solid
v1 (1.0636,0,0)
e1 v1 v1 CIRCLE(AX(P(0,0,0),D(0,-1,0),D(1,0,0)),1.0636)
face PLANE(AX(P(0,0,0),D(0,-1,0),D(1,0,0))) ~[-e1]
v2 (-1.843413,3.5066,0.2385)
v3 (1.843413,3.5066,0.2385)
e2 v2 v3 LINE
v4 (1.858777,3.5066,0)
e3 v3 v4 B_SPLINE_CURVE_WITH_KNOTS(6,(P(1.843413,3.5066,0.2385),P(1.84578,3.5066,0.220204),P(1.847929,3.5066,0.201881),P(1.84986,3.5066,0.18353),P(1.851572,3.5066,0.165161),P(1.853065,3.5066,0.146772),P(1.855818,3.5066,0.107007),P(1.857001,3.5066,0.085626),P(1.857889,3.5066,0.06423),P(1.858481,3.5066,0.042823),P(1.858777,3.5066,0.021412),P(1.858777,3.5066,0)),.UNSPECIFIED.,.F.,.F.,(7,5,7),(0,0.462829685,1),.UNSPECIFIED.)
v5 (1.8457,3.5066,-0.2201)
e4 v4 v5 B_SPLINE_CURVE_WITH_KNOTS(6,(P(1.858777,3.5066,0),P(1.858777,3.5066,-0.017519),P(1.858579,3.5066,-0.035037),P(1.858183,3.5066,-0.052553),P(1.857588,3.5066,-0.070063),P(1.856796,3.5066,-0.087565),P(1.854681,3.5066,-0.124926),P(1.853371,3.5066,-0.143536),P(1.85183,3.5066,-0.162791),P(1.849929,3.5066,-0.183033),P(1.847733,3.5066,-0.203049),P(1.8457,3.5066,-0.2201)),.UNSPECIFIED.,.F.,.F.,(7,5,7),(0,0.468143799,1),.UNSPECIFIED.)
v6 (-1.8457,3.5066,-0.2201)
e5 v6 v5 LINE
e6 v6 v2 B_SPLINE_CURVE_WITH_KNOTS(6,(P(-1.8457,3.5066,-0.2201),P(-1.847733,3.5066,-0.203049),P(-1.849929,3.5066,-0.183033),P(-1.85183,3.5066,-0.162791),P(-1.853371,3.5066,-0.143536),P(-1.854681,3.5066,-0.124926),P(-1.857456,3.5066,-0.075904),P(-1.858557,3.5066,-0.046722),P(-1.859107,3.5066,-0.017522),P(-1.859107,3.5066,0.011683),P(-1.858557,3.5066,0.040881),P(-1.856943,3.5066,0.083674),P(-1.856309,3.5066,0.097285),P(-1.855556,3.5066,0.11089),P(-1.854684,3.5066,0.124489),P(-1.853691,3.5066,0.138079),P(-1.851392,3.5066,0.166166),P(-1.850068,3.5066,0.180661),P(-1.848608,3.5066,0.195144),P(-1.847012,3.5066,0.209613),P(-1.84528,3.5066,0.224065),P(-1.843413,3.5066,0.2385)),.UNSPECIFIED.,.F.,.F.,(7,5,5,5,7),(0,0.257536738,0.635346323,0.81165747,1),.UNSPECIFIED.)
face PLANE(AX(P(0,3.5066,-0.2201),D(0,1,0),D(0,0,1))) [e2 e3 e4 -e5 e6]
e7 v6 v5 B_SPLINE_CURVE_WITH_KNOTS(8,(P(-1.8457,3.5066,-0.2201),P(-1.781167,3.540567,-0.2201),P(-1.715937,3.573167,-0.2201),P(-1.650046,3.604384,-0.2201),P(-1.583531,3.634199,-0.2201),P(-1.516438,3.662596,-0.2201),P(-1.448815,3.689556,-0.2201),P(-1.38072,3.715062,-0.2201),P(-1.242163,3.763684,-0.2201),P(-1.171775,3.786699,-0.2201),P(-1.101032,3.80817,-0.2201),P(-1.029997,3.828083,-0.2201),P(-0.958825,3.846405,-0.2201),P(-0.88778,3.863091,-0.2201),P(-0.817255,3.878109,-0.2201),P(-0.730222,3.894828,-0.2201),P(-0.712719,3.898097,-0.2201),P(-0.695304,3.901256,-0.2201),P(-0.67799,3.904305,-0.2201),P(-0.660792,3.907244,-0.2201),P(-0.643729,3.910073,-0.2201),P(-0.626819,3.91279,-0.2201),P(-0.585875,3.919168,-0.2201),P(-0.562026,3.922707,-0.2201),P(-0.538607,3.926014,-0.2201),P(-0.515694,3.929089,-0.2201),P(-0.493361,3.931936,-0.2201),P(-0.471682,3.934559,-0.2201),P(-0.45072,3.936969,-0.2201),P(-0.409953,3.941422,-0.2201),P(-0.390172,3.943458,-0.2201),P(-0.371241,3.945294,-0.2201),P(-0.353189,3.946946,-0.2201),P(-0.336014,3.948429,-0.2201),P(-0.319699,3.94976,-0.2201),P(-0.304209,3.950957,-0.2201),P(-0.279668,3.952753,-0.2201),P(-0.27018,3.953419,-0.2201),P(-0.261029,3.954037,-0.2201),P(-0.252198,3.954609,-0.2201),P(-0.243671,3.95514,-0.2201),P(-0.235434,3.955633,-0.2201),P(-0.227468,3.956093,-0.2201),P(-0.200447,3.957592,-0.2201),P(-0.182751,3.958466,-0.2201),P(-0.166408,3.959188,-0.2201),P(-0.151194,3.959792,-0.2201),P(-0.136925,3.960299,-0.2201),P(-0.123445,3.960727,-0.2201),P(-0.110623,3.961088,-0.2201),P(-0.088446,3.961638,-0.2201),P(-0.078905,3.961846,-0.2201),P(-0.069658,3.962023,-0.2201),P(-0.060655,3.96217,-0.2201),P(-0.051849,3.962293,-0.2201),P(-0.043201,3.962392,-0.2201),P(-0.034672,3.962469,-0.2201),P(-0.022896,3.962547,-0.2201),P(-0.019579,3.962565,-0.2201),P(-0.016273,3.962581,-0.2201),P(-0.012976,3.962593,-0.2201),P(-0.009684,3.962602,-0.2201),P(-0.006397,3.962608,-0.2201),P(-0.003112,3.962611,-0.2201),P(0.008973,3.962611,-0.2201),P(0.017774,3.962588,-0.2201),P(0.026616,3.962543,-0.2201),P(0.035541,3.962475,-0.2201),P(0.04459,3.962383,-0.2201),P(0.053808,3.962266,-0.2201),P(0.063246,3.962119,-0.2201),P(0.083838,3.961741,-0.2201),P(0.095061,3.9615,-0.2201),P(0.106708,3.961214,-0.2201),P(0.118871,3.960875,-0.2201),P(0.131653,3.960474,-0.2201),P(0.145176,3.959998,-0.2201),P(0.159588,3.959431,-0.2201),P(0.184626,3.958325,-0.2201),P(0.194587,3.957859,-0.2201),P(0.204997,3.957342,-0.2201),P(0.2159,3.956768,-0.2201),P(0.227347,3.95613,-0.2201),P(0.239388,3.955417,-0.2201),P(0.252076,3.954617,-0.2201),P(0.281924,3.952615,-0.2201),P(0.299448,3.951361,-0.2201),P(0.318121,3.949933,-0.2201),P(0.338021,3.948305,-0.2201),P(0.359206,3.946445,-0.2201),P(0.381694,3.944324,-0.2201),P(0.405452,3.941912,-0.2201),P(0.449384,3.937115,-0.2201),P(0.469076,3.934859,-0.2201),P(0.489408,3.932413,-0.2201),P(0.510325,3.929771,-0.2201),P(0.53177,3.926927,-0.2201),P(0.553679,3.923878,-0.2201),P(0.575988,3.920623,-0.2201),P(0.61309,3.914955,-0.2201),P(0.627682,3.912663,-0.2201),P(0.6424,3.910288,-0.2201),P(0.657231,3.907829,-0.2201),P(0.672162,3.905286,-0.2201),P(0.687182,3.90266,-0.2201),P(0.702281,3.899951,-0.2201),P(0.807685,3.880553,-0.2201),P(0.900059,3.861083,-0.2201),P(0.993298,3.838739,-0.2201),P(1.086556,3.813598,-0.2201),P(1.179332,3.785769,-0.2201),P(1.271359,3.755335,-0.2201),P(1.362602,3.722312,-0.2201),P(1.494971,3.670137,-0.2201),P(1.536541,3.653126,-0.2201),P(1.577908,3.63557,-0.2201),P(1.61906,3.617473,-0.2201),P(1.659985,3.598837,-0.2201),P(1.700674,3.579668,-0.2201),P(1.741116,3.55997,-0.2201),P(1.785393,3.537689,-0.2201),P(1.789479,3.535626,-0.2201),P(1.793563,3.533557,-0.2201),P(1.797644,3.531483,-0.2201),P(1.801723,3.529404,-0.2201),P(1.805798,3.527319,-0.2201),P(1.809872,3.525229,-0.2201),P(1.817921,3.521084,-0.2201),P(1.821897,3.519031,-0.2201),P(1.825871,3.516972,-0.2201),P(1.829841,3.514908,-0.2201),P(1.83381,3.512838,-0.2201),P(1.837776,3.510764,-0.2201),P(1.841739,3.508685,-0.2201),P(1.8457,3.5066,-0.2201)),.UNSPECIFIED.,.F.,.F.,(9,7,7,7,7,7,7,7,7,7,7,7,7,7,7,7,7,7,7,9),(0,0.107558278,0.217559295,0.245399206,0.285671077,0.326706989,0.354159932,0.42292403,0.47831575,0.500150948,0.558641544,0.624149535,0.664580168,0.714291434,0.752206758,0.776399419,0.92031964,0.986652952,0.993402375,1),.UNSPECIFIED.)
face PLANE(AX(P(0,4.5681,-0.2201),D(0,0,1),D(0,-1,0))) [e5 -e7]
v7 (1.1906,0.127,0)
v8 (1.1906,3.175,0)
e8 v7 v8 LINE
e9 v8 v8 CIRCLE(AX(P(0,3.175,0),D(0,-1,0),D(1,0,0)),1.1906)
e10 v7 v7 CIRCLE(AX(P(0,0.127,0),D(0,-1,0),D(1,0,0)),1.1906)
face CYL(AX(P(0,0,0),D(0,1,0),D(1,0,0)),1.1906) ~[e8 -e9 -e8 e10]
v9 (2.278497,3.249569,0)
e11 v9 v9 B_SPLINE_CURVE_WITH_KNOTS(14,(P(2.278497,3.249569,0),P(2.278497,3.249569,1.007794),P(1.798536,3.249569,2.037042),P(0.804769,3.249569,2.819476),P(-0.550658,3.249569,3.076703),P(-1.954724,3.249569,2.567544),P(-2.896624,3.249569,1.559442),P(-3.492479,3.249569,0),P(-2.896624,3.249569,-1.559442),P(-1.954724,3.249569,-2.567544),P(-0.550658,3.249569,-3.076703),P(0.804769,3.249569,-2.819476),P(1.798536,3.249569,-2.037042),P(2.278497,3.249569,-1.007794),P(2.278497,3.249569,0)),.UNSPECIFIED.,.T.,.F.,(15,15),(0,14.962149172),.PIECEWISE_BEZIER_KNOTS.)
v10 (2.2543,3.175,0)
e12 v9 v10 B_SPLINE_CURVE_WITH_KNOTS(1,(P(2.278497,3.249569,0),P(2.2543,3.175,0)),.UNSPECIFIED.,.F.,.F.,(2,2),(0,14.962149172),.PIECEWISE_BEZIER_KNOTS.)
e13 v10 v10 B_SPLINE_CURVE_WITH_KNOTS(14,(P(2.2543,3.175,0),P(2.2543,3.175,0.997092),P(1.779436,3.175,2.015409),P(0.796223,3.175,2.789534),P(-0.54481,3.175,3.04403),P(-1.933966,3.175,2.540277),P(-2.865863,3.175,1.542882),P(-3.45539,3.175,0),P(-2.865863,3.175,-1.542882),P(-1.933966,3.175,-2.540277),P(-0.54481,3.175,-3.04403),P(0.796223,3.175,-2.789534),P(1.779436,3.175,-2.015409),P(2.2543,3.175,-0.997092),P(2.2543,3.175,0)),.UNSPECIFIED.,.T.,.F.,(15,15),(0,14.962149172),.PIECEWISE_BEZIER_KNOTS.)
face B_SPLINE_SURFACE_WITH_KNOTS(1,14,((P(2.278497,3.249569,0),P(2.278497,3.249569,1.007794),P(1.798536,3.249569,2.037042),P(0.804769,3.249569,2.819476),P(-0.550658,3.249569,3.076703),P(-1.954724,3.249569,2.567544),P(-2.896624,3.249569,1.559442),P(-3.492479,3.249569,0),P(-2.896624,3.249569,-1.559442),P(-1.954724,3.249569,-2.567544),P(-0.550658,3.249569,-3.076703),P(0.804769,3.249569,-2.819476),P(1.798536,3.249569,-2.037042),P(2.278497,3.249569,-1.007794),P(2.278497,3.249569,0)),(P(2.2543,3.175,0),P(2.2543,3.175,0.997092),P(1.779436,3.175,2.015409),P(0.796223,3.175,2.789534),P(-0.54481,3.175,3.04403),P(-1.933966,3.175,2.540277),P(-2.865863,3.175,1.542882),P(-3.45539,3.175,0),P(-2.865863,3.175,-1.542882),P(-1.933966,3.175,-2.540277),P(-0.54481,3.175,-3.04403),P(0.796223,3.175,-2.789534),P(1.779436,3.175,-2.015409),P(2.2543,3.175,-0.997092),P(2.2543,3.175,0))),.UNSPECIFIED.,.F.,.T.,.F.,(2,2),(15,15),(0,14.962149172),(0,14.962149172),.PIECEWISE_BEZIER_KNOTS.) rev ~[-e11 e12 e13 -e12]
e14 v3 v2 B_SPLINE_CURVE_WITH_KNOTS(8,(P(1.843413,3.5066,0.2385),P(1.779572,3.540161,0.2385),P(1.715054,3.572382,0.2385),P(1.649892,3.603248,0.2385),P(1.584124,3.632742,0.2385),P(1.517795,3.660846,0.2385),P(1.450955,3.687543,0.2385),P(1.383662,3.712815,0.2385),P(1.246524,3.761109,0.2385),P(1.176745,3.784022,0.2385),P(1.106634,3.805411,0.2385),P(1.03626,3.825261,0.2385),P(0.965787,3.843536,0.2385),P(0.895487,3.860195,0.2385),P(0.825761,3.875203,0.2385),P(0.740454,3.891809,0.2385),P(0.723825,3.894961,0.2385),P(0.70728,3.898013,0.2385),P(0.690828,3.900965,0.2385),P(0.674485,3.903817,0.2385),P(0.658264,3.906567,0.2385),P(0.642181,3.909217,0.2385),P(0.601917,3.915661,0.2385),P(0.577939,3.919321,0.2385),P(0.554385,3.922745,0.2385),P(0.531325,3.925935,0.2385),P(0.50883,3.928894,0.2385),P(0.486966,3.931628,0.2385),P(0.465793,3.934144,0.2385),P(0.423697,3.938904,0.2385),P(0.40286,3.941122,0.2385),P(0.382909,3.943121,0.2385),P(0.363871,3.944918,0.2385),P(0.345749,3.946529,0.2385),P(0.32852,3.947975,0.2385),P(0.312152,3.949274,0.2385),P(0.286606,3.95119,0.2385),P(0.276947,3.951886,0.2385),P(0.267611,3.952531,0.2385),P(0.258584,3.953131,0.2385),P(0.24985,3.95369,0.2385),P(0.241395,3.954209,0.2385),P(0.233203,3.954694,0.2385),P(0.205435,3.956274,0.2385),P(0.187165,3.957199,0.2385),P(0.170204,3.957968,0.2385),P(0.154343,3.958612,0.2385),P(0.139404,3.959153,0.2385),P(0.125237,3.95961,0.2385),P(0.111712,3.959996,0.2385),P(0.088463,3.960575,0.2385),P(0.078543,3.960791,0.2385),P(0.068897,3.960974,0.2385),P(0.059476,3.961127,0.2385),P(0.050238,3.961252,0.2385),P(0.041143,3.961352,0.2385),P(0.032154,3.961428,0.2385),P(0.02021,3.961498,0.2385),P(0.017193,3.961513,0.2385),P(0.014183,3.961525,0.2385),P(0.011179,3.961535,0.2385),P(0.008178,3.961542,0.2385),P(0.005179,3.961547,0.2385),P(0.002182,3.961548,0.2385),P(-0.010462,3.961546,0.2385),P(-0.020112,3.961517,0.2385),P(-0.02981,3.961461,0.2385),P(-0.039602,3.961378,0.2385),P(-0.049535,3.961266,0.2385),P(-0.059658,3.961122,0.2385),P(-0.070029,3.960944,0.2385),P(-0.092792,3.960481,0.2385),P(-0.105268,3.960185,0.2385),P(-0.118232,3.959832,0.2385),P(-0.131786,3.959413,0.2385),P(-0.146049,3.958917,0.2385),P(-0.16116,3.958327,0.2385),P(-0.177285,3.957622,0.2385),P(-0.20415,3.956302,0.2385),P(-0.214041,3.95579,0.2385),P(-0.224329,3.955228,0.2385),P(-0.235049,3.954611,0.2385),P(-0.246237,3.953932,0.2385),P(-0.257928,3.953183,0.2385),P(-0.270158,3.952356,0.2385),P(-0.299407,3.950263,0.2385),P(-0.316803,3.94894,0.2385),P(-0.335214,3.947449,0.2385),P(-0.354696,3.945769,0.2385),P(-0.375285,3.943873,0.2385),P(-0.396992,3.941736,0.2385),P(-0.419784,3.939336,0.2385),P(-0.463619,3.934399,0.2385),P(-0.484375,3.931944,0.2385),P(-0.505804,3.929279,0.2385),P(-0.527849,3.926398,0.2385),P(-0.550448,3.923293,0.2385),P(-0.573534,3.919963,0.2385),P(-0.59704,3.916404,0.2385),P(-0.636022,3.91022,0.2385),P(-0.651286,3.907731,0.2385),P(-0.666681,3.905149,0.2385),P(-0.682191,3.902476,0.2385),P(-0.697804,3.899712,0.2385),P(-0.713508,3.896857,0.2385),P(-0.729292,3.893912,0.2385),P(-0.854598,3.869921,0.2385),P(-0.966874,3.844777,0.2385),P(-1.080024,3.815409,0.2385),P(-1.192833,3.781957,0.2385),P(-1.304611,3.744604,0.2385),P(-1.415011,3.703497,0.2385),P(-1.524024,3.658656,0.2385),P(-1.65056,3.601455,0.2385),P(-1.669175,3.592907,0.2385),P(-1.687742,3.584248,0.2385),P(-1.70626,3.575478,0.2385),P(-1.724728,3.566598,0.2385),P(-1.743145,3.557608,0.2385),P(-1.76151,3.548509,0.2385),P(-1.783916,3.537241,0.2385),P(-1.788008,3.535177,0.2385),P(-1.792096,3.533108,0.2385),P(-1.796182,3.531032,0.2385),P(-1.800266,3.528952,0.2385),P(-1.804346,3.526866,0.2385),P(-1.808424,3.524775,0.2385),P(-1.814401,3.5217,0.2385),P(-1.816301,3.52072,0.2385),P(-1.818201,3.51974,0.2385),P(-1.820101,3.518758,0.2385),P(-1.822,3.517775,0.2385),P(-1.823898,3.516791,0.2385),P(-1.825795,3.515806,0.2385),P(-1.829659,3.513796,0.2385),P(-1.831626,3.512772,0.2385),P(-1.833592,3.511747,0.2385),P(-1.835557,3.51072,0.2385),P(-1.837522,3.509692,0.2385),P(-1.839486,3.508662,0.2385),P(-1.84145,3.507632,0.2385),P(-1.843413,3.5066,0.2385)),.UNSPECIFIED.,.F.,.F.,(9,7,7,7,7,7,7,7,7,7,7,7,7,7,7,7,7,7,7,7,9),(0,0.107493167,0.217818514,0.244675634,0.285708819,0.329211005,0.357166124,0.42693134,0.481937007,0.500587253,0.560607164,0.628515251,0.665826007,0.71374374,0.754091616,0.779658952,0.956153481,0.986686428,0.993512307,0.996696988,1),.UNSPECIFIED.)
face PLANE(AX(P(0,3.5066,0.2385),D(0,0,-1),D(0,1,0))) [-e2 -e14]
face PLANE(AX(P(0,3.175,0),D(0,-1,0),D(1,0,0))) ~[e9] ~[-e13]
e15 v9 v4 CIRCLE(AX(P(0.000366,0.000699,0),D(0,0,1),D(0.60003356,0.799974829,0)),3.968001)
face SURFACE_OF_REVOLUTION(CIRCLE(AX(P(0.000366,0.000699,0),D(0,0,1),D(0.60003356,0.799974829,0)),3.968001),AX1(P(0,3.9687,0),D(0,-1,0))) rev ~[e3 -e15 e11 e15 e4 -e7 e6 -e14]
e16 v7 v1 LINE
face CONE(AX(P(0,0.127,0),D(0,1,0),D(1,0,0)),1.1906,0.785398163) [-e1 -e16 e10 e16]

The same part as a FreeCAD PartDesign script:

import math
import FreeCAD as App
import Part
import Sketcher
from FreeCAD import Vector
Q = App.Units.Quantity


def edges_at(feature, points):
    """Names of the edges that pass closest to the given points."""
    edges = feature.Shape.Edges
    near = lambda p: min(range(len(edges)), key=lambda i: edges[i].distToShape(Part.Vertex(*p))[0])
    return sorted({f"Edge{near(p) + 1}" for p in points})


def add_polygon(sketch, points):
    """Adds a closed chain of lines whose ends are joined by coincident constraints."""
    first, n = sketch.GeometryCount, len(points)
    for a, b in zip(points, points[1:] + points[:1]):
        sketch.addGeometry(Part.LineSegment(App.Vector(*a, 0), App.Vector(*b, 0)), False)
    for i in range(n):
        sketch.addConstraint(Sketcher.Constraint("Coincident", first + i, 2, first + (i + 1) % n, 1))

doc = App.newDocument("Part")
body = doc.addObject("PartDesign::Body", "Body")

# Sketch on XY plane
sketch1 = body.newObject("Sketcher::SketchObject", "Sketch")
sketch1.AttachmentSupport = (doc.getObject("XY_Plane"), [""])
sketch1.MapMode = "FlatFace"
sketch1.addGeometry([
    Part.ArcOfCircle(Part.Circle(Vector(0, 0, 0), Vector(0, 0, 1), 3.96878), math.radians(53.129525), math.radians(90)),  # 0
    Part.LineSegment(Vector(0, 3.9687, 0), Vector(0, 0, 0)),  # 1
    Part.LineSegment(Vector(0, 0, 0), Vector(1.1906, 0, 0)),  # 2
    Part.LineSegment(Vector(1.1906, 0, 0), Vector(1.1906, 3.175, 0)),  # 3
    Part.LineSegment(Vector(1.1906, 3.175, 0), Vector(2.3813, 3.175, 0)),  # 4
], False)
sketch1.addConstraint([
    Sketcher.Constraint("Coincident", 0, 2, 1, 1),
    Sketcher.Constraint("Coincident", 1, 2, 2, 1),
    Sketcher.Constraint("Coincident", 2, 2, 3, 1),
    Sketcher.Constraint("Coincident", 3, 2, 4, 1),
    Sketcher.Constraint("Coincident", 4, 2, 0, 1),
    Sketcher.Constraint("Vertical", 1),
    Sketcher.Constraint("Horizontal", 2),
    Sketcher.Constraint("Vertical", 3),
    Sketcher.Constraint("Horizontal", 4),
    Sketcher.Constraint("Coincident", 0, 3, -1, 1),
    Sketcher.Constraint("Coincident", 1, 2, -1, 1),
    Sketcher.Constraint("Equal", 2, 4),
    Sketcher.Constraint("DistanceX", 2, 1, 2, 2, Q("0.046874 in")),
    Sketcher.Constraint("Radius", 0, Q("0.156252 in")),
])
revolution = body.newObject("PartDesign::Revolution", "Revolution")
revolution.Profile = sketch1
revolution.ReferenceAxis = (sketch1, ["V_Axis"])
revolution.Angle = 360
doc.recompute()

chamfer = body.newObject("PartDesign::Chamfer", "Chamfer")
chamfer.Base = (revolution, edges_at(revolution, [(-1.191, 0, 0), (-2.381, 3.175, 0)]))
chamfer.Size = Q("0.005 in")

# Sketch on YZ plane
sketch2 = body.newObject("Sketcher::SketchObject", "Sketch001")
sketch2.AttachmentSupport = (doc.getObject("YZ_Plane"), [""])
sketch2.MapMode = "FlatFace"
add_polygon(sketch2, [(4.5681, 0.2385), (3.5066, 0.2385), (3.5066, -0.2201), (4.5681, -0.2201)])  # lines 0-3
sketch2.addConstraint([
    Sketcher.Constraint("Horizontal", 0),
    Sketcher.Constraint("Vertical", 1),
    Sketcher.Constraint("Horizontal", 2),
    Sketcher.Constraint("Vertical", 3),
    Sketcher.Constraint("DistanceX", 0, 2, 0, 1, Q("0.0418 in")),
    Sketcher.Constraint("DistanceY", 1, 2, 1, 1, Q("0.4586 mm")),
    Sketcher.Constraint("DistanceY", -1, 1, 0, 2, Q("0.0094 in")),
    Sketcher.Constraint("DistanceX", -1, 1, 0, 2, Q("3.5066 mm")),
])
pocket1 = body.newObject("PartDesign::Pocket", "Pocket")
pocket1.Profile = sketch2
pocket1.Length = Q("1 in")
pocket1.Midplane = True

doc.recompute()
